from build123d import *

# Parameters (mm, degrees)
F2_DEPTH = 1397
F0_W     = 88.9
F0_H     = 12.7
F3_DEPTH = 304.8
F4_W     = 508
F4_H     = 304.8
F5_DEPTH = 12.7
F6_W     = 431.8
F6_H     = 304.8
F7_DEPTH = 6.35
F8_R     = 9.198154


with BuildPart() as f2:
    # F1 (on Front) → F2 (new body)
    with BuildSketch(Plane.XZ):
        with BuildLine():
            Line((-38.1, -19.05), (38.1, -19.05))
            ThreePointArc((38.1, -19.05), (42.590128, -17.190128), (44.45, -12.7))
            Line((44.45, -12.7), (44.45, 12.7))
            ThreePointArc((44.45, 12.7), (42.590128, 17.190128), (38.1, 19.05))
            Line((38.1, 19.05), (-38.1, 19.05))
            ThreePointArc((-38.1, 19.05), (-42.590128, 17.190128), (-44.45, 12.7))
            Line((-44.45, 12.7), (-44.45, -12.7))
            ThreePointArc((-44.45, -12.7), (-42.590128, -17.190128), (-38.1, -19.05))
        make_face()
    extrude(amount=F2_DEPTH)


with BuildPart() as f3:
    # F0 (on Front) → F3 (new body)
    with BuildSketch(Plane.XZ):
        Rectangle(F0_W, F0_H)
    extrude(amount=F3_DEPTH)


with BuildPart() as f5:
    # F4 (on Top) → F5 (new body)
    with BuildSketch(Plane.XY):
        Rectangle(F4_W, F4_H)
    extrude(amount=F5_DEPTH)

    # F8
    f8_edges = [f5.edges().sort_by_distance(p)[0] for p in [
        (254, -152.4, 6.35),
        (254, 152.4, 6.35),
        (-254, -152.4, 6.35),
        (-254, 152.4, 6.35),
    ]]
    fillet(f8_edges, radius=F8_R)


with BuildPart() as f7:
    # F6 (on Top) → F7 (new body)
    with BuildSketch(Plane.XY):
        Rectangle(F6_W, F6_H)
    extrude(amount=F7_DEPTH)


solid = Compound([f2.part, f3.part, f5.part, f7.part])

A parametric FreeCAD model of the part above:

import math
import FreeCAD as App
import Part
import Sketcher
Q = App.Units.Quantity


def edges_at(feature, points):
    """Names of the edges that pass closest to the given points."""
    edges = feature.Shape.Edges
    near = lambda p: min(range(len(edges)), key=lambda i: edges[i].distToShape(Part.Vertex(*p))[0])
    return sorted({f"Edge{near(p) + 1}" for p in points})


def add_polygon(sketch, points):
    """Adds a closed chain of lines whose ends are joined by coincident constraints."""
    first, n = sketch.GeometryCount, len(points)
    for a, b in zip(points, points[1:] + points[:1]):
        sketch.addGeometry(Part.LineSegment(App.Vector(*a, 0), App.Vector(*b, 0)), False)
    for i in range(n):
        sketch.addConstraint(Sketcher.Constraint("Coincident", first + i, 2, first + (i + 1) % n, 1))

doc = App.newDocument("Part")
body = doc.addObject("PartDesign::Body", "Body")

# Sketch on XZ plane
sketch1 = body.newObject("Sketcher::SketchObject", "Sketch")
sketch1.AttachmentSupport = (doc.getObject("XZ_Plane"), [""])
sketch1.MapMode = "FlatFace"
sketch1.addGeometry([
    Part.LineSegment(App.Vector(-38.1, -19.05, 0), App.Vector(38.1, -19.05, 0)),  # 0
    Part.ArcOfCircle(Part.Circle(App.Vector(38.1, -12.7, 0), App.Vector(0, 0, 1), 6.35), math.radians(-89.999998), math.radians(-0.000002)),  # 1
    Part.LineSegment(App.Vector(44.45, -12.7, 0), App.Vector(44.45, 12.7, 0)),  # 2
    Part.ArcOfCircle(Part.Circle(App.Vector(38.1, 12.7, 0), App.Vector(0, 0, 1), 6.35), math.radians(0.000002), math.radians(89.999998)),  # 3
    Part.LineSegment(App.Vector(38.1, 19.05, 0), App.Vector(-38.1, 19.05, 0)),  # 4
    Part.ArcOfCircle(Part.Circle(App.Vector(-38.1, 12.7, 0), App.Vector(0, 0, 1), 6.35), math.radians(90.000002), math.radians(179.999998)),  # 5
    Part.LineSegment(App.Vector(-44.45, 12.7, 0), App.Vector(-44.45, -12.7, 0)),  # 6
    Part.ArcOfCircle(Part.Circle(App.Vector(-38.1, -12.7, 0), App.Vector(0, 0, 1), 6.35), math.radians(-179.999998), math.radians(-90.000002)),  # 7
], False)
sketch1.addConstraint([
    Sketcher.Constraint("Tangent", 0, 2, 1, 1),
    Sketcher.Constraint("Tangent", 1, 2, 2, 1),
    Sketcher.Constraint("Tangent", 2, 2, 3, 1),
    Sketcher.Constraint("Tangent", 3, 2, 4, 1),
    Sketcher.Constraint("Tangent", 4, 2, 5, 1),
    Sketcher.Constraint("Tangent", 5, 2, 6, 1),
    Sketcher.Constraint("Tangent", 6, 2, 7, 1),
    Sketcher.Constraint("Tangent", 7, 2, 0, 1),
    Sketcher.Constraint("Horizontal", 0),
    Sketcher.Constraint("Vertical", 2),
    Sketcher.Constraint("Horizontal", 4),
    Sketcher.Constraint("Vertical", 6),
    Sketcher.Constraint("Equal", 1, 3),
    Sketcher.Constraint("Equal", 3, 5),
    Sketcher.Constraint("Equal", 5, 7),
    Sketcher.Constraint("Symmetric", 1, 3, 5, 3, -1, 1),
    Sketcher.Constraint("DistanceX", 0, 1, 0, 2, Q("3 in")),
    Sketcher.Constraint("DistanceY", 2, 1, 2, 2, Q("1 in")),
    Sketcher.Constraint("Radius", 1, Q("0.25 in")),
])
pad1 = body.newObject("PartDesign::Pad", "Pad")
pad1.Profile = sketch1
pad1.Length = Q("55 in")
body2 = doc.addObject("PartDesign::Body", "Body001")

# Sketch on XZ plane
sketch2 = body2.newObject("Sketcher::SketchObject", "Sketch001")
sketch2.AttachmentSupport = (doc.getObject("XZ_Plane001"), [""])
sketch2.MapMode = "FlatFace"
add_polygon(sketch2, [(-44.45, 6.35), (-44.45, -6.35), (44.45, -6.35), (44.45, 6.35)])  # lines 0-3
sketch2.addConstraint([
    Sketcher.Constraint("Vertical", 0),
    Sketcher.Constraint("Horizontal", 1),
    Sketcher.Constraint("Vertical", 2),
    Sketcher.Constraint("Horizontal", 3),
    Sketcher.Constraint("Symmetric", 0, 2, 2, 2, -1, 1),
    Sketcher.Constraint("DistanceX", 1, 1, 1, 2, Q("3.5 in")),
    Sketcher.Constraint("DistanceY", 0, 2, 0, 1, Q("0.5 in")),
])
pad2 = body2.newObject("PartDesign::Pad", "Pad001")
pad2.Profile = sketch2
pad2.Length = Q("12 in")
body3 = doc.addObject("PartDesign::Body", "Body002")

# Sketch on XY plane
sketch3 = body3.newObject("Sketcher::SketchObject", "Sketch002")
sketch3.AttachmentSupport = (doc.getObject("XY_Plane002"), [""])
sketch3.MapMode = "FlatFace"
add_polygon(sketch3, [(-254, 152.4), (-254, -152.4), (254, -152.4), (254, 152.4)])  # lines 0-3
sketch3.addConstraint([
    Sketcher.Constraint("Vertical", 0),
    Sketcher.Constraint("Horizontal", 1),
    Sketcher.Constraint("Vertical", 2),
    Sketcher.Constraint("Horizontal", 3),
    Sketcher.Constraint("Symmetric", 0, 2, 2, 2, -1, 1),
    Sketcher.Constraint("DistanceX", 1, 1, 1, 2, Q("20 in")),
    Sketcher.Constraint("DistanceY", 0, 2, 0, 1, Q("12 in")),
])
pad3 = body3.newObject("PartDesign::Pad", "Pad002")
pad3.Profile = sketch3
pad3.Length = Q("0.5 in")
doc.recompute()

fillet = body3.newObject("PartDesign::Fillet", "Fillet")
fillet.Base = (pad3, edges_at(pad3, [
    (254, -152.4, 6.35),
    (254, 152.4, 6.35),
    (-254, -152.4, 6.35),
    (-254, 152.4, 6.35),
]))
fillet.Radius = 9.198154
body4 = doc.addObject("PartDesign::Body", "Body003")

# Sketch on XY plane
sketch4 = body4.newObject("Sketcher::SketchObject", "Sketch003")
sketch4.AttachmentSupport = (doc.getObject("XY_Plane003"), [""])
sketch4.MapMode = "FlatFace"
add_polygon(sketch4, [(-215.9, 152.4), (-215.9, -152.4), (215.9, -152.4), (215.9, 152.4)])  # lines 0-3
sketch4.addConstraint([
    Sketcher.Constraint("Vertical", 0),
    Sketcher.Constraint("Horizontal", 1),
    Sketcher.Constraint("Vertical", 2),
    Sketcher.Constraint("Horizontal", 3),
    Sketcher.Constraint("Symmetric", 0, 2, 2, 2, -1, 1),
    Sketcher.Constraint("DistanceX", 1, 1, 1, 2, Q("17 in")),
    Sketcher.Constraint("DistanceY", 0, 2, 0, 1, Q("12 in")),
])
pad4 = body4.newObject("PartDesign::Pad", "Pad003")
pad4.Profile = sketch4
pad4.Length = Q("0.25 in")

doc.recompute()
